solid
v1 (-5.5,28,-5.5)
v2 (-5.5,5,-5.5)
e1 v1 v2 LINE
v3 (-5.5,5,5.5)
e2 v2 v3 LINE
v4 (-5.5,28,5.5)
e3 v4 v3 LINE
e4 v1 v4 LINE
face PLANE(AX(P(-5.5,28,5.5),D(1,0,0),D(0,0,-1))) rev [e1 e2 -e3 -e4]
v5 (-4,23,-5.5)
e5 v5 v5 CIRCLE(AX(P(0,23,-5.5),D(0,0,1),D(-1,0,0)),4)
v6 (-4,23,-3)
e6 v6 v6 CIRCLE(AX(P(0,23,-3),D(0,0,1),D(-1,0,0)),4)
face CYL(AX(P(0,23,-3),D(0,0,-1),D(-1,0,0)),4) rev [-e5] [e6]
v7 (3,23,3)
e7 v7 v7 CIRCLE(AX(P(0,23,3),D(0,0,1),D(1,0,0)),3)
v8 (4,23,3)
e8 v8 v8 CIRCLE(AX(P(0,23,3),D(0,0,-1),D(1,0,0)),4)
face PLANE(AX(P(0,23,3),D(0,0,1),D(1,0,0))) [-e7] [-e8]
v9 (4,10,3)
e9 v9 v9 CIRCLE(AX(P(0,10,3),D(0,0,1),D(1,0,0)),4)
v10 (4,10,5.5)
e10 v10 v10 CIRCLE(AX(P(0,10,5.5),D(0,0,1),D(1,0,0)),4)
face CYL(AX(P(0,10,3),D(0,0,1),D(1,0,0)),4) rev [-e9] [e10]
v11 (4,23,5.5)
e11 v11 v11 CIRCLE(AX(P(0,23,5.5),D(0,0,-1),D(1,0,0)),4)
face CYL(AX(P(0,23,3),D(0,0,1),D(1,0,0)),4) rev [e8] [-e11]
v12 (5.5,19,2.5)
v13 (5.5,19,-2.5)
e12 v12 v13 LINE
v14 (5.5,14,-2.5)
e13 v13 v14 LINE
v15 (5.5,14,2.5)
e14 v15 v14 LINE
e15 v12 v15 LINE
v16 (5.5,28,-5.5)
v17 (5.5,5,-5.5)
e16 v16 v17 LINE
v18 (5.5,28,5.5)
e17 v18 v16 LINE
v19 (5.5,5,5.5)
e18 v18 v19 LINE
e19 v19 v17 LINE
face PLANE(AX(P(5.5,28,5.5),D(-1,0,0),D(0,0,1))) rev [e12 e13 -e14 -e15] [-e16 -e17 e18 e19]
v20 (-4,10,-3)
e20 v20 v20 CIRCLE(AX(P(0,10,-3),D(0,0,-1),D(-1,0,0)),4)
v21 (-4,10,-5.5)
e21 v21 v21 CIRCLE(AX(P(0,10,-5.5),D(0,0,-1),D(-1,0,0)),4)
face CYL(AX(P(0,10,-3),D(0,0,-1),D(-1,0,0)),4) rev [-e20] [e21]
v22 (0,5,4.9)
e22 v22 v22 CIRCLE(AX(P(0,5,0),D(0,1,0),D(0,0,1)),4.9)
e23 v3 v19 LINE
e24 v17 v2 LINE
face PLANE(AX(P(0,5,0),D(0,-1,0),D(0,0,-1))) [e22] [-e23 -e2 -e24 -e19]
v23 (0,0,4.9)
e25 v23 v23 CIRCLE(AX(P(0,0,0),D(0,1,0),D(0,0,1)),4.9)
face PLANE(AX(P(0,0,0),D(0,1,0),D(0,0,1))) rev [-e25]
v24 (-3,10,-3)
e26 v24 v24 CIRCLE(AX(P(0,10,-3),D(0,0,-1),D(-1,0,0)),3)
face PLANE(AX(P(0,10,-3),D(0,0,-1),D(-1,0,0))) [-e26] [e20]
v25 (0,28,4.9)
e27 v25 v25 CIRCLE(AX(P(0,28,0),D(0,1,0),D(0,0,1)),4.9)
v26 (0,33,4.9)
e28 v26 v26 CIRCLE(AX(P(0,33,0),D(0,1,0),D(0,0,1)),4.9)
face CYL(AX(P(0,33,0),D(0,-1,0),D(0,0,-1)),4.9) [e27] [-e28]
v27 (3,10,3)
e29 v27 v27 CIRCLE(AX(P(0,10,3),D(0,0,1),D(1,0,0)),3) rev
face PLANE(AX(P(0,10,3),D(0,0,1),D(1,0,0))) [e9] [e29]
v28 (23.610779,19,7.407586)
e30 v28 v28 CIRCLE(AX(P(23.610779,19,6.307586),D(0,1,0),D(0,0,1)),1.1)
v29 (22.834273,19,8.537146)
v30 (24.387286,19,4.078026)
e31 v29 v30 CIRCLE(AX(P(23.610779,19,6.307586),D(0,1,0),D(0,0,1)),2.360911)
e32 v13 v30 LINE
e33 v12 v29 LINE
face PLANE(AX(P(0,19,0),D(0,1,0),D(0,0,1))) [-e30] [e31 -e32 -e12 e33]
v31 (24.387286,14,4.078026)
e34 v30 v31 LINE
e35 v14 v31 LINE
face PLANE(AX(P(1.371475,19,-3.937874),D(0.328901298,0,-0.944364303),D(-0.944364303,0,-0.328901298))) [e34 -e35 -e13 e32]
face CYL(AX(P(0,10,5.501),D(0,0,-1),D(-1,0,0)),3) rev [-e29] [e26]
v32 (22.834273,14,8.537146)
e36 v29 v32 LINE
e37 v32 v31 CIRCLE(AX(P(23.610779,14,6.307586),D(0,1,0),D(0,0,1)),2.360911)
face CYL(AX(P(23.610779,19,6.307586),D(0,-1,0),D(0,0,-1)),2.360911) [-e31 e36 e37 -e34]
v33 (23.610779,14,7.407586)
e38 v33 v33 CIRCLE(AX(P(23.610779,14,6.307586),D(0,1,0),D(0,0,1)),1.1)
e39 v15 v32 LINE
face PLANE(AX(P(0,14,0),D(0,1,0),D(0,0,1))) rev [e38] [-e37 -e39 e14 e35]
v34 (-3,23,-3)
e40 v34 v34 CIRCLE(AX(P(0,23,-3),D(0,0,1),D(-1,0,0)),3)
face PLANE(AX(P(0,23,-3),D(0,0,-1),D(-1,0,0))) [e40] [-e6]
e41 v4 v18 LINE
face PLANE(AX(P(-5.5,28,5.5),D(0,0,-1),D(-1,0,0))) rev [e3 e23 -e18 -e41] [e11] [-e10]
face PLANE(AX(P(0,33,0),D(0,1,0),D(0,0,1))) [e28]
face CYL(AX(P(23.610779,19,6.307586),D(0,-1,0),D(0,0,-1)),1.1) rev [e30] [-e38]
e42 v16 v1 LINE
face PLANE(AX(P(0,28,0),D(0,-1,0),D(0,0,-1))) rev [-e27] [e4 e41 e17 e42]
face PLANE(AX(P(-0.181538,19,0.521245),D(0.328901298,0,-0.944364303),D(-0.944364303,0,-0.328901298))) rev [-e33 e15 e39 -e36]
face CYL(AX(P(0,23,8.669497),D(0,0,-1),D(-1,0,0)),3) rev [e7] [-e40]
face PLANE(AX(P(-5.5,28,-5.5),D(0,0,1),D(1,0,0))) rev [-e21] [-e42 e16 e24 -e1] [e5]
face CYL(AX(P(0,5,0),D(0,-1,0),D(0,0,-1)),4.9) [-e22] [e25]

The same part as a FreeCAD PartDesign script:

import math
import FreeCAD as App
import Part
import Sketcher

V = App.Vector

doc = App.newDocument("Part")
body = doc.addObject("PartDesign::Body", "Body")

# Sketch on XZ plane
sketch1 = body.newObject("Sketcher::SketchObject", "Sketch")
sketch1.AttachmentSupport = (doc.getObject("XZ_Plane"), [""])
sketch1.MapMode = "FlatFace"
sketch1.addGeometry(Part.Circle(V(0, 0, 0), V(0, 0, 1), 4.9), False)
sketch1.addConstraint([
    Sketcher.Constraint("Coincident", 0, 3, -1, 1),
    Sketcher.Constraint("Diameter", 0, 9.8),
])
pad1 = body.newObject("PartDesign::Pad", "Pad")
pad1.Profile = sketch1
pad1.Length = 5
pad1.Reversed = True

# Sketch on XZ plane
sketch2 = body.newObject("Sketcher::SketchObject", "Sketch001")
sketch2.AttachmentSupport = (doc.getObject("XZ_Plane"), [""])
sketch2.MapMode = "FlatFace"
sketch2.AttachmentOffset = App.Placement(V(0, 0, -5), App.Rotation())
sketch2.addGeometry([
    Part.LineSegment(V(-6, -6, 0), V(-6, 6, 0)),
    Part.LineSegment(V(-6, 6, 0), V(6, 6, 0)),
    Part.LineSegment(V(6, 6, 0), V(6, -6, 0)),
    Part.LineSegment(V(6, -6, 0), V(-6, -6, 0)),
], False)
sketch2.addConstraint([
    Sketcher.Constraint("Coincident", 0, 2, 1, 1),
    Sketcher.Constraint("Coincident", 1, 2, 2, 1),
    Sketcher.Constraint("Coincident", 2, 2, 3, 1),
    Sketcher.Constraint("Coincident", 3, 2, 0, 1),
    Sketcher.Constraint("Vertical", 0),
    Sketcher.Constraint("Horizontal", 1),
    Sketcher.Constraint("Vertical", 2),
    Sketcher.Constraint("Horizontal", 3),
    Sketcher.Constraint("Symmetric", 0, 2, 2, 2, -1, 1),
    Sketcher.Constraint("Equal", 3, 0),
    Sketcher.Constraint("DistanceX", 1, 1, 1, 2, 11.0),
])
pad2 = body.newObject("PartDesign::Pad", "Pad001")
pad2.Profile = sketch2
pad2.Length = 23
pad2.Reversed = True

# Sketch on XY plane
sketch3 = body.newObject("Sketcher::SketchObject", "Sketch002")
sketch3.AttachmentSupport = (doc.getObject("XY_Plane"), [""])
sketch3.MapMode = "FlatFace"
sketch3.AttachmentOffset = App.Placement(V(0, 0, 5.5), App.Rotation())
sketch3.addGeometry(Part.Circle(V(0, 10, 0), V(0, 0, 1), 4), False)
sketch3.addConstraint([
    Sketcher.Constraint("PointOnObject", 0, 3, -2),
    Sketcher.Constraint("Diameter", 0, 8.0),
    Sketcher.Constraint("DistanceY", -1, 1, 0, 3, 10.0),
])
pocket1 = body.newObject("PartDesign::Pocket", "Pocket")
pocket1.Profile = sketch3
pocket1.Length = 2.5

# Sketch on XY plane
sketch4 = body.newObject("Sketcher::SketchObject", "Sketch003")
sketch4.AttachmentSupport = (doc.getObject("XY_Plane"), [""])
sketch4.MapMode = "FlatFace"
sketch4.AttachmentOffset = App.Placement(V(0, 0, -5.5), App.Rotation())
sketch4.addGeometry(Part.Circle(V(0, 10, 0), V(0, 0, 1), 4), False)
sketch4.addConstraint([
    Sketcher.Constraint("PointOnObject", 0, 3, -2),
    Sketcher.Constraint("Diameter", 0, 8.0),
    Sketcher.Constraint("DistanceY", -1, 1, 0, 3, 10.0),
])
pocket2 = body.newObject("PartDesign::Pocket", "Pocket001")
pocket2.Profile = sketch4
pocket2.Length = 2.5
pocket2.Reversed = True

# Sketch on XY plane
sketch5 = body.newObject("Sketcher::SketchObject", "Sketch004")
sketch5.AttachmentSupport = (doc.getObject("XY_Plane"), [""])
sketch5.MapMode = "FlatFace"
sketch5.AttachmentOffset = App.Placement(V(0, 0, -3), App.Rotation())
sketch5.addGeometry(Part.Circle(V(0, 10, 0), V(0, 0, 1), 3), False)
sketch5.addConstraint([
    Sketcher.Constraint("PointOnObject", 0, 3, -2),
    Sketcher.Constraint("Diameter", 0, 6.0),
    Sketcher.Constraint("DistanceY", -1, 1, 0, 3, 10.0),
])
pocket3 = body.newObject("PartDesign::Pocket", "Pocket002")
pocket3.Profile = sketch5
pocket3.Length = 6
pocket3.Reversed = True

# Sketch on XZ plane
sketch6 = body.newObject("Sketcher::SketchObject", "Sketch005")
sketch6.AttachmentSupport = (doc.getObject("XZ_Plane"), [""])
sketch6.MapMode = "FlatFace"
sketch6.AttachmentOffset = App.Placement(V(0, 0, -28), App.Rotation())
sketch6.addGeometry(Part.Circle(V(0, 0, 0), V(0, 0, 1), 4.9), False)
sketch6.addConstraint([
    Sketcher.Constraint("Coincident", 0, 3, -1, 1),
    Sketcher.Constraint("Diameter", 0, 9.8),
])
pad3 = body.newObject("PartDesign::Pad", "Pad002")
pad3.Profile = sketch6
pad3.Length = 5
pad3.Reversed = True

# Sketch on XZ plane
sketch7 = body.newObject("Sketcher::SketchObject", "Sketch006")
sketch7.AttachmentSupport = (doc.getObject("XZ_Plane"), [""])
sketch7.MapMode = "FlatFace"
sketch7.AttachmentOffset = App.Placement(V(0, 0, -16.5), App.Rotation())
sketch7.addGeometry([
    Part.LineSegment(V(5.5, 2.5, 0), V(22.8, 8.5, 0)),  # 0
    Part.ArcOfCircle(Part.Circle(V(23.6, 6.3, 0), V(0, 0, 1), 2.4), math.radians(-71), math.radians(109)),  # 1
    Part.LineSegment(V(24.4, 4.1, 0), V(5.5, -2.5, 0)),  # 2
    Part.LineSegment(V(5.5, -2.5, 0), V(5.5, 2.5, 0)),  # 3
    Part.Circle(V(23.6, 6.3, 0), V(0, 0, 1), 1.1),  # 4
], False)
sketch7.addConstraint([
    Sketcher.Constraint("Tangent", 0, 2, 1, 2),
    Sketcher.Constraint("Tangent", 1, 1, 2, 1),
    Sketcher.Constraint("Coincident", 2, 2, 3, 1),
    Sketcher.Constraint("Coincident", 3, 2, 0, 1),
    Sketcher.Constraint("Vertical", 3),
    Sketcher.Constraint("Coincident", 4, 3, 1, 3),
    Sketcher.Constraint("Parallel", 0, 2),
    Sketcher.Constraint("Diameter", 4, 2.2),
    Sketcher.Constraint("DistanceY", 3, 1, 3, 2, 5.0),
    Sketcher.Constraint("Distance", 2, 20.0),
    Sketcher.Constraint("DistanceX", -1, 1, 2, 2, 5.5),
    Sketcher.Constraint("DistanceY", 2, 2, -1, 1, 2.5),
    Sketcher.Constraint("Radius", 1, 2.360911),
])
pad4 = body.newObject("PartDesign::Pad", "Pad003")
pad4.Profile = sketch7
pad4.Length = 5
pad4.Midplane = True
doc.recompute()

datumplane = body.newObject("PartDesign::Plane", "DatumPlane")
datumplane.AttachmentSupport = (doc.getObject("XZ_Plane"), [""])
datumplane.MapMode = "FlatFace"
datumplane.AttachmentOffset = App.Placement(V(0, 0, -16.5), App.Rotation())
mirrored = body.newObject("PartDesign::Mirrored", "Mirrored")
mirrored.Originals = [pocket1]
mirrored.MirrorPlane = (datumplane, [""])
body.Tip = mirrored
doc.recompute()

datumplane2 = body.newObject("PartDesign::Plane", "DatumPlane001")
datumplane2.AttachmentSupport = (doc.getObject("XZ_Plane"), [""])
datumplane2.MapMode = "FlatFace"
datumplane2.AttachmentOffset = App.Placement(V(0, 0, -16.5), App.Rotation())
mirrored2 = body.newObject("PartDesign::Mirrored", "Mirrored001")
mirrored2.Originals = [pocket2]
mirrored2.MirrorPlane = (datumplane2, [""])
body.Tip = mirrored2
doc.recompute()

datumplane3 = body.newObject("PartDesign::Plane", "DatumPlane002")
datumplane3.AttachmentSupport = (doc.getObject("XZ_Plane"), [""])
datumplane3.MapMode = "FlatFace"
datumplane3.AttachmentOffset = App.Placement(V(0, 0, -16.5), App.Rotation())
mirrored3 = body.newObject("PartDesign::Mirrored", "Mirrored002")
mirrored3.Originals = [pocket3]
mirrored3.MirrorPlane = (datumplane3, [""])
body.Tip = mirrored3

doc.recompute()
